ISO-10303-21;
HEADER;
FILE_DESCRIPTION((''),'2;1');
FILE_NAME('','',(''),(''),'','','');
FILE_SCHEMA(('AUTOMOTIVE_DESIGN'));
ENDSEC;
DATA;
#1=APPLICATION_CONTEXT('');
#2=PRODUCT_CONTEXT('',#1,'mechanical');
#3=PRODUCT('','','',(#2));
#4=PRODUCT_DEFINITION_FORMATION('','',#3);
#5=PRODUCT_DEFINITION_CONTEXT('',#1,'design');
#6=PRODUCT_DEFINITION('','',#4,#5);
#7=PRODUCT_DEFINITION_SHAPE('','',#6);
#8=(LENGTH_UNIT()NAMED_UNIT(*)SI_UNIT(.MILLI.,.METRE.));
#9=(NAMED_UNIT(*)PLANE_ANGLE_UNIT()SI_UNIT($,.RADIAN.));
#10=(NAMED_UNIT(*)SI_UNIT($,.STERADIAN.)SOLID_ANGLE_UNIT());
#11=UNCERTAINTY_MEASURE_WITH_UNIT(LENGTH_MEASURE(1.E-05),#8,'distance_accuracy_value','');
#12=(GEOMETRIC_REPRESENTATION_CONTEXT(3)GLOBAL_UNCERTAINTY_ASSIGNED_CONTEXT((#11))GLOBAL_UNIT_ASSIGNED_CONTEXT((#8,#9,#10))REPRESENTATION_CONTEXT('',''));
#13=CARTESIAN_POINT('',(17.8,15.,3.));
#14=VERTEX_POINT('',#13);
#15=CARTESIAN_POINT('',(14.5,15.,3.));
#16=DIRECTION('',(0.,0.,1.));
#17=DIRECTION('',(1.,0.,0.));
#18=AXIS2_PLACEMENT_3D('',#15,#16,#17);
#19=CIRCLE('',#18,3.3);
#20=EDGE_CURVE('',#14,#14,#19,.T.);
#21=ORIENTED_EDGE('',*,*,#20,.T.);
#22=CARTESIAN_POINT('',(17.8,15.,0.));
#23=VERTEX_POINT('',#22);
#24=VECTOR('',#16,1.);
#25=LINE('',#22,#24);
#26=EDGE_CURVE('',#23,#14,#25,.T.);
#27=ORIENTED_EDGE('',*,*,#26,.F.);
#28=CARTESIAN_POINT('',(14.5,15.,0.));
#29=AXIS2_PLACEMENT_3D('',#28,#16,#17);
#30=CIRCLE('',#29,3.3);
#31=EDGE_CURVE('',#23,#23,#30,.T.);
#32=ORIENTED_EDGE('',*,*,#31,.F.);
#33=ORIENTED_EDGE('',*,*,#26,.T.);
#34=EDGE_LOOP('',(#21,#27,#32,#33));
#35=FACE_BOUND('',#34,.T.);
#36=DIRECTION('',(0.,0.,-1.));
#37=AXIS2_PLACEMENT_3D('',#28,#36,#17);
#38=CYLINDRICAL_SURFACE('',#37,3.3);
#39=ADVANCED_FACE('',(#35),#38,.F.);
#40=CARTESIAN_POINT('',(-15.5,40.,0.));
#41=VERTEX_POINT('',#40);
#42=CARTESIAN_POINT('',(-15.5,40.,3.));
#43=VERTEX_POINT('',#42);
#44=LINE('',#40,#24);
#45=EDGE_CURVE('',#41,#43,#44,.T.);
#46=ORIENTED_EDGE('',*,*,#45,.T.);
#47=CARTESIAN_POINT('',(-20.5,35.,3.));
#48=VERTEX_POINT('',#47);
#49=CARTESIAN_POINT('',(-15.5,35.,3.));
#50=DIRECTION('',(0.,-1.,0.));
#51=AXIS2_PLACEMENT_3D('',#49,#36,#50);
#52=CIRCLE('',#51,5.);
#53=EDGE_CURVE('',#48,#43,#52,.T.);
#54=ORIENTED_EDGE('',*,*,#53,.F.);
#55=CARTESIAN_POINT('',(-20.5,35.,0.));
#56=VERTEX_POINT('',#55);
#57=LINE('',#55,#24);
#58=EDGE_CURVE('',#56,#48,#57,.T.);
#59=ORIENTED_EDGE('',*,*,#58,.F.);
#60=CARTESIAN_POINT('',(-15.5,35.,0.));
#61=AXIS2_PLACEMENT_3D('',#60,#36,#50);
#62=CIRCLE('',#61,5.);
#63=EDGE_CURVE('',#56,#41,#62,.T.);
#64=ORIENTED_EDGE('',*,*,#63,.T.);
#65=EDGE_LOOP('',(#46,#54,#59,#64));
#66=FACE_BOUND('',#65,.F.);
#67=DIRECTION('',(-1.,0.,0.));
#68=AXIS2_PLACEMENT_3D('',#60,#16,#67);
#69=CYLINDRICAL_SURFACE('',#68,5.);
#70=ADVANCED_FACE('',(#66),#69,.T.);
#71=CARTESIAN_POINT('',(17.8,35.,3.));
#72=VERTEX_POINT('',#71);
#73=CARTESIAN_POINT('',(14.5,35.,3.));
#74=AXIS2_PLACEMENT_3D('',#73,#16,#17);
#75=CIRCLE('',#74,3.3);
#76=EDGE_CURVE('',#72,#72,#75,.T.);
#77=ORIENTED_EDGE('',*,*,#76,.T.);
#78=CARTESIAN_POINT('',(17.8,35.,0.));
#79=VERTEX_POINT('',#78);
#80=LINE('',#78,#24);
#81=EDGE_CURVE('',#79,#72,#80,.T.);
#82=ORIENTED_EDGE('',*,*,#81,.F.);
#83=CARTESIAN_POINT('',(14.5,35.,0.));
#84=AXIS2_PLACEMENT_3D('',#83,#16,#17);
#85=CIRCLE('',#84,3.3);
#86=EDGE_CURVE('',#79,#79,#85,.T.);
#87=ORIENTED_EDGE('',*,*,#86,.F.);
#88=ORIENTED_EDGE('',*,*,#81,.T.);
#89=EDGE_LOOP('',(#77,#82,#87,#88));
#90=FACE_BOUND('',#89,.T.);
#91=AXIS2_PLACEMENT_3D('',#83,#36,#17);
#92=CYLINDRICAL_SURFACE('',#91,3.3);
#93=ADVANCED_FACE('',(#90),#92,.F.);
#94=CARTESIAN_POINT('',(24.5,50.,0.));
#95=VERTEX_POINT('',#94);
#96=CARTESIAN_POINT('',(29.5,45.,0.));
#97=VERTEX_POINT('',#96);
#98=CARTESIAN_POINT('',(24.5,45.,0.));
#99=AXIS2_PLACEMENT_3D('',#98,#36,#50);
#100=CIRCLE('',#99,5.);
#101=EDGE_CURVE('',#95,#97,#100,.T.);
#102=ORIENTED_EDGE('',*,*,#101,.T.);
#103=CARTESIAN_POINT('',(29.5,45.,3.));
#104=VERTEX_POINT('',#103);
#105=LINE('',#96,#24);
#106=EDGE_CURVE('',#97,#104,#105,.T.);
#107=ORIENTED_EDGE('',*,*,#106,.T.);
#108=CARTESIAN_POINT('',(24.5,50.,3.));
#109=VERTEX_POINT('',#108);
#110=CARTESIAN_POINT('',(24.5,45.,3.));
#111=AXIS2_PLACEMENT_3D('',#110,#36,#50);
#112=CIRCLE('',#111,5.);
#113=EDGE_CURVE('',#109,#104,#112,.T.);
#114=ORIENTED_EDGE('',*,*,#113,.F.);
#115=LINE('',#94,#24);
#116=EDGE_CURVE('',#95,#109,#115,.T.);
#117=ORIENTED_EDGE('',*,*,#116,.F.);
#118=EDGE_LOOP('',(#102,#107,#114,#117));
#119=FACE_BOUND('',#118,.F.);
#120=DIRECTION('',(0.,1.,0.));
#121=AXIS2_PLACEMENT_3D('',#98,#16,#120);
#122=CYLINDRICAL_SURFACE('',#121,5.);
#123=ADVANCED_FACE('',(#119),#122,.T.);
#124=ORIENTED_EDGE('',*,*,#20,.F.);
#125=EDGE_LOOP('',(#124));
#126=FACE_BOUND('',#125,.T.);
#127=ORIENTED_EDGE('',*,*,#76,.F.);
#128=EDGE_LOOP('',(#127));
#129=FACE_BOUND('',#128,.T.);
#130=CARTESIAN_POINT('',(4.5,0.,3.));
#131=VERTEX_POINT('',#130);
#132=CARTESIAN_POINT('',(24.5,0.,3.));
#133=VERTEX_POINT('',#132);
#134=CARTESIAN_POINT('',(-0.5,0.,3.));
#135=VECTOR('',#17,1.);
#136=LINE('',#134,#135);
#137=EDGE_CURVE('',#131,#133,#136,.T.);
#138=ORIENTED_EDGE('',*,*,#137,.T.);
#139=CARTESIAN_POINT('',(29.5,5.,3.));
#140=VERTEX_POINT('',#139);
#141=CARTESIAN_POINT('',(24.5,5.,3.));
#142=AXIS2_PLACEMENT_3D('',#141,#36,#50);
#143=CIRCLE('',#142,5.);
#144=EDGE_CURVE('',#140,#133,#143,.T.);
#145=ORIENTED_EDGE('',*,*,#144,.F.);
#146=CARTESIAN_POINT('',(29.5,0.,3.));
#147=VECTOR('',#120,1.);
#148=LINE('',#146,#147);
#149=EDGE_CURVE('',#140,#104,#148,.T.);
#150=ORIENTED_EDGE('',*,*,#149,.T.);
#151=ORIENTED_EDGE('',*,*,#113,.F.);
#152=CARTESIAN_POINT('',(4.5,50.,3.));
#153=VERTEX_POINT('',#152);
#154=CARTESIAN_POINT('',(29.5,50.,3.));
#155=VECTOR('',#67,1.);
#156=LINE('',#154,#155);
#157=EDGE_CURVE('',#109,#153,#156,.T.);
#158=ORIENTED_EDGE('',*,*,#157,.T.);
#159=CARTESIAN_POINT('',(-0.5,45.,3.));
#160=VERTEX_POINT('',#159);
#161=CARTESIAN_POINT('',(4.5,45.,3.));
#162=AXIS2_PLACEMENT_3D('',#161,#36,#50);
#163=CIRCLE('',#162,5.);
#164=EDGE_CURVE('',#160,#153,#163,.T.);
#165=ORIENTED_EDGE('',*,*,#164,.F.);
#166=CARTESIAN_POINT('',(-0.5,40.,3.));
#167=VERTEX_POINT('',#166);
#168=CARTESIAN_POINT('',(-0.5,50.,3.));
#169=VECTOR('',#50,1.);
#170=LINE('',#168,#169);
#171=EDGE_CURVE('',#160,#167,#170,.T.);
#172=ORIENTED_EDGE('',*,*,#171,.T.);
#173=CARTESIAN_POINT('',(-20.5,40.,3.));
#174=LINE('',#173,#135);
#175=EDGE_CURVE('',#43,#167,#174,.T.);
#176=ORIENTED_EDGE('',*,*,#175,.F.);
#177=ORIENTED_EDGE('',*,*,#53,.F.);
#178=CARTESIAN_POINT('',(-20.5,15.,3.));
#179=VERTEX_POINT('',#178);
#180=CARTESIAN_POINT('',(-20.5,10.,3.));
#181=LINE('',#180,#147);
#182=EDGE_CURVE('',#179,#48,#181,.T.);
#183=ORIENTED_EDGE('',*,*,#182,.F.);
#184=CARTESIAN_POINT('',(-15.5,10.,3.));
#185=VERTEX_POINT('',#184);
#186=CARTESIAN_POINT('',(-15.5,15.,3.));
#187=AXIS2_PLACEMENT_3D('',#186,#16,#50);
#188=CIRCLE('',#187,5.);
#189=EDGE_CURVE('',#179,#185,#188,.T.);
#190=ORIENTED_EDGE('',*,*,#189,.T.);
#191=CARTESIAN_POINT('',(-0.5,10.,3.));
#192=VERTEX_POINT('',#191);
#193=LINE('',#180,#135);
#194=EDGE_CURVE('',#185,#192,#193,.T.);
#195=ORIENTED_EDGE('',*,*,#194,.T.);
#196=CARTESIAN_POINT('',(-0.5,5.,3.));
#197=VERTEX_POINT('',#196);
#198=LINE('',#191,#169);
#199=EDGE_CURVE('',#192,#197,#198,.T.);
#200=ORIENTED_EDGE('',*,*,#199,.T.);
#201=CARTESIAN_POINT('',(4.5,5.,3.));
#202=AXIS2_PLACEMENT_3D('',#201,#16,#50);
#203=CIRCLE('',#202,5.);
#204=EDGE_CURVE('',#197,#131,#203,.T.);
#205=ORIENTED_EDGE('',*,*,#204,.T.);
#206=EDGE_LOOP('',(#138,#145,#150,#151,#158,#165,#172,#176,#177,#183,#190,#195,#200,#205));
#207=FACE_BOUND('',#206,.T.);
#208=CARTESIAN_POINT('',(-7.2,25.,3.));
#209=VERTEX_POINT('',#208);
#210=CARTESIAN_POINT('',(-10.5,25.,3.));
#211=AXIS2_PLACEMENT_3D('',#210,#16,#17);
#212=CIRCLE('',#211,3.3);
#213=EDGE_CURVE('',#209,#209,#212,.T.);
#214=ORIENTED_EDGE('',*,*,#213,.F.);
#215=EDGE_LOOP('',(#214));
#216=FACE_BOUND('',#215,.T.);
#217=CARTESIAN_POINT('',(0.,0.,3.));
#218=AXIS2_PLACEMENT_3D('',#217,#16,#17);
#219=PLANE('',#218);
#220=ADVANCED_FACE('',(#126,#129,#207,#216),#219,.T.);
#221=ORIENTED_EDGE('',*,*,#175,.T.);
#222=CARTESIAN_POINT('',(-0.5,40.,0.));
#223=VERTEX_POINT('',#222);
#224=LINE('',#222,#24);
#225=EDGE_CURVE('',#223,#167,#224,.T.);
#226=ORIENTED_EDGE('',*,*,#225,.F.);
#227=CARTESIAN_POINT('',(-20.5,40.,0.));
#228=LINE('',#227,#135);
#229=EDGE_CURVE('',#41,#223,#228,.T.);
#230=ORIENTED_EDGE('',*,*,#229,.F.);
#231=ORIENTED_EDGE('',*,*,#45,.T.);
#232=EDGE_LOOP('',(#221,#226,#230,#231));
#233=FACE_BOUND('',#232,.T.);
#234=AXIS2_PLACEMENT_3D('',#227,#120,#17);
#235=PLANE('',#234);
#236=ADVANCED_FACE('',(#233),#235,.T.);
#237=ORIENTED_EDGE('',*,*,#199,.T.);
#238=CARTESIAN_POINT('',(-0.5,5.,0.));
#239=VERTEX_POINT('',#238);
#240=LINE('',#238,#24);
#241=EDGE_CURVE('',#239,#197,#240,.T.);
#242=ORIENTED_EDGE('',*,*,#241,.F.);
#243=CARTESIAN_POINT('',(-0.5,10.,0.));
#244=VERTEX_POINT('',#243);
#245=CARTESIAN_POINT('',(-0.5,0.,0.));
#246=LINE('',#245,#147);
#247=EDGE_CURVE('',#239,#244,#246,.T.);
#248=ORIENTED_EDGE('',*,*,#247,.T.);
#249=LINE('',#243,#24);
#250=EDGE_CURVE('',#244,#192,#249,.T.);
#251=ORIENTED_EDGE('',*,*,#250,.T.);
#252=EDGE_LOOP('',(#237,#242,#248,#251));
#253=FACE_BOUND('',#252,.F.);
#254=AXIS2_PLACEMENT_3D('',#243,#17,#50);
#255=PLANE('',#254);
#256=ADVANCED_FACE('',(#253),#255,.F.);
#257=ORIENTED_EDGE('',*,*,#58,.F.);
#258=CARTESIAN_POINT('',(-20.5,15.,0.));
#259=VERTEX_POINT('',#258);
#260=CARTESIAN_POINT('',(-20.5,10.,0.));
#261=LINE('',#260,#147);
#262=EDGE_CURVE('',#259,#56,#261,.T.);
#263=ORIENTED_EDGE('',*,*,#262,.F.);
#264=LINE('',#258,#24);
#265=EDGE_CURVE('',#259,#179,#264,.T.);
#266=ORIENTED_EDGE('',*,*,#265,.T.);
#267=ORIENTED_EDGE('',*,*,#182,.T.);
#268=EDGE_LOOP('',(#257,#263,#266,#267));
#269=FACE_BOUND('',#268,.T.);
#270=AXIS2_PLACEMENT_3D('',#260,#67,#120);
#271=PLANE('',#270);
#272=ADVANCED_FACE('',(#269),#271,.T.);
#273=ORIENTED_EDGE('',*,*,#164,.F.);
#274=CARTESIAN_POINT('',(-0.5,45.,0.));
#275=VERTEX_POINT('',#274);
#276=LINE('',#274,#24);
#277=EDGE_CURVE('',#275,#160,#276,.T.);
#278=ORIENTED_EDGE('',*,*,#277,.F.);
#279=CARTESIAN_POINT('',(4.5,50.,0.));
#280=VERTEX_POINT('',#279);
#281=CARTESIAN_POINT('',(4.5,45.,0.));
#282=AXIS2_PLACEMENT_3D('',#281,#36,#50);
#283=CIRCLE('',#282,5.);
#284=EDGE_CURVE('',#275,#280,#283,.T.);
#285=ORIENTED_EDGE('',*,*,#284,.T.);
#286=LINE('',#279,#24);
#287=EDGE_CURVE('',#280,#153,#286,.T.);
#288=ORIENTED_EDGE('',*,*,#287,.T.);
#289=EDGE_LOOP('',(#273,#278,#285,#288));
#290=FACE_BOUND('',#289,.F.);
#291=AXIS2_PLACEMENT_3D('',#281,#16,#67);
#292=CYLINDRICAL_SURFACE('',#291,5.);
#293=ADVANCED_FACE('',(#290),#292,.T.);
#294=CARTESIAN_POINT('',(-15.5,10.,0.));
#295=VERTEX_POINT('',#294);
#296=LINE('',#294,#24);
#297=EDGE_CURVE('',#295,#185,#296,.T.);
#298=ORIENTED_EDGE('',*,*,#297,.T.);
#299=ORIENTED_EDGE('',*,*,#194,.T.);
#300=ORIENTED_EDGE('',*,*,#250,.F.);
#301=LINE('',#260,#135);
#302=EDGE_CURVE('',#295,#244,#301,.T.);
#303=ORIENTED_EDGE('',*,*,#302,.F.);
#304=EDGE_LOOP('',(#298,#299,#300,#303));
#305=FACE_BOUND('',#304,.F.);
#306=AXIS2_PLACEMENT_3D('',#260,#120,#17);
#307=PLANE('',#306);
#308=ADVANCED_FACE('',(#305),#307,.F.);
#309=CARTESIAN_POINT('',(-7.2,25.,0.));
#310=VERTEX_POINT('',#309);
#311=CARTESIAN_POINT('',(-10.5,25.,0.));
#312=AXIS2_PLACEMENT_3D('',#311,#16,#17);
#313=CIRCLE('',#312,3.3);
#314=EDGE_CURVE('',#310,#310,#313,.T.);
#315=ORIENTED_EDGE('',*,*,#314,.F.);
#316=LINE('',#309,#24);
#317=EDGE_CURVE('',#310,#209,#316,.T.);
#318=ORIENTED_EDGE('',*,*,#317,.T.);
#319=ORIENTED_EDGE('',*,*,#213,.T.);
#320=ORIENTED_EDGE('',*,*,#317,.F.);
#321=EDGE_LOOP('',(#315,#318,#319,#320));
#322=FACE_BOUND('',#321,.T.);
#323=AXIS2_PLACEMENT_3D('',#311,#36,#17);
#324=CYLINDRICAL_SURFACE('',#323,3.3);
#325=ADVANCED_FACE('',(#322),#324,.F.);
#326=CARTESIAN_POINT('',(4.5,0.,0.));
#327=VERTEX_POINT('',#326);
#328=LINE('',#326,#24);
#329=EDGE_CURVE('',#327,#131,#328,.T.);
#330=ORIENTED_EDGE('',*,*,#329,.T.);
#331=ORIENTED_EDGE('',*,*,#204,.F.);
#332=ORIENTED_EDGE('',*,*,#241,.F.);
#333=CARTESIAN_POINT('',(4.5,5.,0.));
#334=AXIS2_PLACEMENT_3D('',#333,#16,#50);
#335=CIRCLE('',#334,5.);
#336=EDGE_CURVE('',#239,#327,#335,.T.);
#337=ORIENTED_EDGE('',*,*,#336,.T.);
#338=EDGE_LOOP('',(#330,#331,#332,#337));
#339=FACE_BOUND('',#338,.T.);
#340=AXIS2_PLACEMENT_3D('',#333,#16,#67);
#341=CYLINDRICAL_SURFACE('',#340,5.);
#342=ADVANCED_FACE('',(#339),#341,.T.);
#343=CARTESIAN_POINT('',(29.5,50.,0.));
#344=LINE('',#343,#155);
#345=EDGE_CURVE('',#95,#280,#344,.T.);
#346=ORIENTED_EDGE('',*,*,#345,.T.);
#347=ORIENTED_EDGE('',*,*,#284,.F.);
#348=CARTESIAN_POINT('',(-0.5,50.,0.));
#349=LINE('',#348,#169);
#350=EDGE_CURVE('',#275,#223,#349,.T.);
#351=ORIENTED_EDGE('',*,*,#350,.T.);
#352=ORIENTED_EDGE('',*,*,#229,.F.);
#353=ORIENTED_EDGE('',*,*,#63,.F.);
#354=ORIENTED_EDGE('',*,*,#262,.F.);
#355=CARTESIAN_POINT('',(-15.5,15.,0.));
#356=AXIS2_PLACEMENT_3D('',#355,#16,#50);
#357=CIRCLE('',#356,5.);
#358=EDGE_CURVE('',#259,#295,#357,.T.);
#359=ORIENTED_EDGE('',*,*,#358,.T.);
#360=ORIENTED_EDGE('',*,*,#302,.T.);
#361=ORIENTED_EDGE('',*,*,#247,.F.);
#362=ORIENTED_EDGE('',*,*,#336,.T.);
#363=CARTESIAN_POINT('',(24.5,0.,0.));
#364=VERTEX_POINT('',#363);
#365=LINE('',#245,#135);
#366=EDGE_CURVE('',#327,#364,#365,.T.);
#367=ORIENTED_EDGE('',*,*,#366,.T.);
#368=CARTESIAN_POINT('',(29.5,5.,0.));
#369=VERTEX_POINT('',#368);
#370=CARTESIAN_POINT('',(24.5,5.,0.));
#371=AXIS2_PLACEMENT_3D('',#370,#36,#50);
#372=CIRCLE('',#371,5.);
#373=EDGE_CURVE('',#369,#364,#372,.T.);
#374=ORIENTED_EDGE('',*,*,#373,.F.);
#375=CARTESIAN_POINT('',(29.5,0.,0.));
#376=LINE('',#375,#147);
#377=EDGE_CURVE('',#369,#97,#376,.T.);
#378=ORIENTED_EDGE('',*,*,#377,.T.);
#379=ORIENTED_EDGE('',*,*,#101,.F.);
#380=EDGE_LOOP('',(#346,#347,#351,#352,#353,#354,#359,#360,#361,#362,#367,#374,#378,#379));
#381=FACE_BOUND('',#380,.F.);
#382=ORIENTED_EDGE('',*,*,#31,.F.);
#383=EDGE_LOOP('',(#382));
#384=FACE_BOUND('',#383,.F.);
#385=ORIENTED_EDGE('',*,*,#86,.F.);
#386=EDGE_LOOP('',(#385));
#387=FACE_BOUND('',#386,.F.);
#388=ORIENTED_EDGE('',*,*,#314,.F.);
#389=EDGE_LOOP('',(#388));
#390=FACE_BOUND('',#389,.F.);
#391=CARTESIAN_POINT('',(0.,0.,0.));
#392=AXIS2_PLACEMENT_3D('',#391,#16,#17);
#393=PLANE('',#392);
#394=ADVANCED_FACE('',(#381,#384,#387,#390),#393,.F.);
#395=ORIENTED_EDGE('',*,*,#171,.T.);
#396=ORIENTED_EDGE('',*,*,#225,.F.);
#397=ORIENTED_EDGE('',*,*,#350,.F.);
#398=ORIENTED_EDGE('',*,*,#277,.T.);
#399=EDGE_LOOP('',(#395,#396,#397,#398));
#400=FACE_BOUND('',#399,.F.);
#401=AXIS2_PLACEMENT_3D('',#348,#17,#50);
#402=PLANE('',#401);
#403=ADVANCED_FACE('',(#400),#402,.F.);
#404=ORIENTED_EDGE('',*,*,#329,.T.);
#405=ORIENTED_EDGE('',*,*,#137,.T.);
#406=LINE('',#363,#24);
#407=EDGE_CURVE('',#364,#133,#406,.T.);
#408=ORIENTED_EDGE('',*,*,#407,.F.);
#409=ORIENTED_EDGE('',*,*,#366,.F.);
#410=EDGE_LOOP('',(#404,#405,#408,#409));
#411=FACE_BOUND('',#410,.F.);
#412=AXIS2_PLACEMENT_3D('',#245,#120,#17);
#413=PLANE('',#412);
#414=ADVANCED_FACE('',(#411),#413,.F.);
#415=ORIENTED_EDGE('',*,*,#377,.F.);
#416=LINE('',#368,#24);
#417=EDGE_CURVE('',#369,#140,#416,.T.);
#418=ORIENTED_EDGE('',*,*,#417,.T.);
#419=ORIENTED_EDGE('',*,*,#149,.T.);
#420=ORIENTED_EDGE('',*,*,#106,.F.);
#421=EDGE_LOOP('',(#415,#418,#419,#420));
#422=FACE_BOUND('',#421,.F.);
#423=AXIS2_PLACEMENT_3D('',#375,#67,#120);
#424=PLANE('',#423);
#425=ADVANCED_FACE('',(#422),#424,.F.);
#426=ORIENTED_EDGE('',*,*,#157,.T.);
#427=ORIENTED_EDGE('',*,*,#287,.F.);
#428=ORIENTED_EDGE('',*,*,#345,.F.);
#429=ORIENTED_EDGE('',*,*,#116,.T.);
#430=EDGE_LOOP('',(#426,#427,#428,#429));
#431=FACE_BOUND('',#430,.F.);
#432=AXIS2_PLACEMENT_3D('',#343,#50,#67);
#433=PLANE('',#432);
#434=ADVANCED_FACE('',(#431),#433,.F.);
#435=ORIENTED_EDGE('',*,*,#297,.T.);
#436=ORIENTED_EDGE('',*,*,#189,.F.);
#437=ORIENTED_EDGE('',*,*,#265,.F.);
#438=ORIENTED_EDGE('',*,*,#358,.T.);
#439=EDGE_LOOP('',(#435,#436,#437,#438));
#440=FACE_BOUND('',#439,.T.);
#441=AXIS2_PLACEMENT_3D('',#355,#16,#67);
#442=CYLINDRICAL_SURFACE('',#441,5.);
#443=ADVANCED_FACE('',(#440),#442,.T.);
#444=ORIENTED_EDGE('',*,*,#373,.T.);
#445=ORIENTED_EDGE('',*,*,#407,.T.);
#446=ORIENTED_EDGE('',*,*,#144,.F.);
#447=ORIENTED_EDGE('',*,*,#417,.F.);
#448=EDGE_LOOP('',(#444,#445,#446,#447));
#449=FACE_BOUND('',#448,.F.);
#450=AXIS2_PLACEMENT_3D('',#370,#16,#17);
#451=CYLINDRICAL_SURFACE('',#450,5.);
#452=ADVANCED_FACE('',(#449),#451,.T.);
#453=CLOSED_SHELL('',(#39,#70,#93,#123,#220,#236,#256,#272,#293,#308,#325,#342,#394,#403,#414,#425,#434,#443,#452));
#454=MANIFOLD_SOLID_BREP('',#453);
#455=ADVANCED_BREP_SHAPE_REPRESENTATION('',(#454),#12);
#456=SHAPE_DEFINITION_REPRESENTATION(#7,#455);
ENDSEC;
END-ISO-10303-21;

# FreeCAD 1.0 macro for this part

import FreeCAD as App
import Part
import Sketcher

V = App.Vector


def edges_at(feature, points):
    """Names of the edges that pass closest to the given points."""
    edges = feature.Shape.Edges
    near = lambda p: min(range(len(edges)), key=lambda i: edges[i].distToShape(Part.Vertex(*p))[0])
    return sorted({f"Edge{near(p) + 1}" for p in points})


def add_polygon(sketch, points):
    """Adds a closed chain of lines whose ends are joined by coincident constraints."""
    first, n = sketch.GeometryCount, len(points)
    for a, b in zip(points, points[1:] + points[:1]):
        sketch.addGeometry(Part.LineSegment(App.Vector(*a, 0), App.Vector(*b, 0)), False)
    for i in range(n):
        sketch.addConstraint(Sketcher.Constraint("Coincident", first + i, 2, first + (i + 1) % n, 1))

doc = App.newDocument("Part")
body = doc.addObject("PartDesign::Body", "Body")

# Sketch on XY plane
sketch1 = body.newObject("Sketcher::SketchObject", "Sketch")
sketch1.AttachmentSupport = (doc.getObject("XY_Plane"), [""])
sketch1.MapMode = "FlatFace"
add_polygon(sketch1, [(-20.5, 40), (-20.5, 10), (-0.5, 10), (-0.5, 0), (29.5, 0), (29.5, 50), (-0.5, 50), (-0.5, 40)])  # lines 0-7
sketch1.addGeometry(Part.Circle(V(-10.5, 25, 0), V(0, 0, 1), 3.3), False)  # 8
sketch1.addGeometry(Part.Circle(V(14.5, 35, 0), V(0, 0, 1), 3.3), False)  # 9
sketch1.addGeometry(Part.Circle(V(14.5, 15, 0), V(0, 0, 1), 3.3), False)  # 10
sketch1.addConstraint([
    Sketcher.Constraint("Vertical", 0),
    Sketcher.Constraint("Horizontal", 1),
    Sketcher.Constraint("Vertical", 2),
    Sketcher.Constraint("Horizontal", 3),
    Sketcher.Constraint("Vertical", 4),
    Sketcher.Constraint("Horizontal", 5),
    Sketcher.Constraint("Vertical", 6),
    Sketcher.Constraint("Horizontal", 7),
    Sketcher.Constraint("Equal", 8, 9),
    Sketcher.Constraint("Equal", 9, 10),
    Sketcher.Constraint("PointOnObject", 2, 2, -1),
    Sketcher.Constraint("Vertical", 9, 3, 10, 3),
    Sketcher.Constraint("Vertical", 2, 2, 5, 2),
    Sketcher.Constraint("Equal", 5, 0),
    Sketcher.Constraint("Equal", 2, 6),
    Sketcher.Constraint("Diameter", 8, 6.6),
    Sketcher.Constraint("DistanceX", 1, 1, 1, 2, 20.0),
    Sketcher.Constraint("DistanceX", 3, 1, 3, 2, 30.0),
    Sketcher.Constraint("DistanceY", 2, 2, 2, 1, 10.0),
    Sketcher.Constraint("DistanceY", -1, 1, 10, 3, 15.0),
    Sketcher.Constraint("DistanceY", 8, 3, 9, 3, 10.0),
    Sketcher.Constraint("DistanceY", 10, 3, 9, 3, 20.0),
    Sketcher.Constraint("DistanceX", 0, 2, 8, 3, 10.0),
    Sketcher.Constraint("DistanceX", 1, 2, 10, 3, 15.0),
    Sketcher.Constraint("DistanceX", 8, 3, -1, 1, 10.5),
])
pad1 = body.newObject("PartDesign::Pad", "Pad")
pad1.Profile = sketch1
pad1.Length = 3
doc.recompute()

fillet = body.newObject("PartDesign::Fillet", "Fillet")
fillet.Base = (pad1, edges_at(pad1, [
    (-20.5, 10, 1.5),
    (-20.5, 40, 1.5),
    (-0.5, 0, 1.5),
    (29.5, 0, 1.5),
    (-0.5, 50, 1.5),
    (29.5, 50, 1.5),
]))
fillet.Radius = 5

doc.recompute()
